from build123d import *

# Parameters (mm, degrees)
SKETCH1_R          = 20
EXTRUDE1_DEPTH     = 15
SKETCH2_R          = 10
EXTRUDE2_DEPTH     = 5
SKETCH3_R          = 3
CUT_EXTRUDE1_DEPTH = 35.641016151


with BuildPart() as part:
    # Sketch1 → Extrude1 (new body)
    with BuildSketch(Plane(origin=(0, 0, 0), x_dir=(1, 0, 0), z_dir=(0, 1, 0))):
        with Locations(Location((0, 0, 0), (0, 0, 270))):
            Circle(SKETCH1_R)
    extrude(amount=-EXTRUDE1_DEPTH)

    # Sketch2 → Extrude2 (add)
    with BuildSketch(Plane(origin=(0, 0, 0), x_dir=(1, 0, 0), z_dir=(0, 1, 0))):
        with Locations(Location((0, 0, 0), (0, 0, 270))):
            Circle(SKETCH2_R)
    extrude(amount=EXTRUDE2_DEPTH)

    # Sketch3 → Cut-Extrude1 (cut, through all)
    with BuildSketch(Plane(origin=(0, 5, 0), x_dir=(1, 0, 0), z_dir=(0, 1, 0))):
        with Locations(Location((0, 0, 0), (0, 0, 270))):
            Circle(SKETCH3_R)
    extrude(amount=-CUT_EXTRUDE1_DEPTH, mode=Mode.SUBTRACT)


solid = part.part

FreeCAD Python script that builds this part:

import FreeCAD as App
import Part
import Sketcher
from FreeCAD import Vector

doc = App.newDocument("Part")
body = doc.addObject("PartDesign::Body", "Body")

# Sketch on XZ plane
sketch1 = doc.addObject("Sketcher::SketchObject", "Sketch")
body.addObject(sketch1)
sketch1.AttachmentSupport = (doc.XZ_Plane, [""])
sketch1.MapMode = "FlatFace"
sketch1.addGeometry(Part.Circle(Vector(0, 0, 0), Vector(0, 0, 1), 20), False)
sketch1.addConstraint(Sketcher.Constraint("Coincident", 0, 3, -1, 1))
sketch1.addConstraint(Sketcher.Constraint("Diameter", 0, 40.0))
pad1 = doc.addObject("PartDesign::Pad", "Pad")
body.addObject(pad1)
pad1.Profile = sketch1
pad1.Length = 15

# Sketch on XZ plane
sketch2 = doc.addObject("Sketcher::SketchObject", "Sketch001")
body.addObject(sketch2)
sketch2.AttachmentSupport = (doc.XZ_Plane, [""])
sketch2.MapMode = "FlatFace"
sketch2.addGeometry(Part.Circle(Vector(0, 0, 0), Vector(0, 0, 1), 10), False)
sketch2.addConstraint(Sketcher.Constraint("Coincident", 0, 3, -1, 1))
sketch2.addConstraint(Sketcher.Constraint("Diameter", 0, 20.0))
pad2 = doc.addObject("PartDesign::Pad", "Pad001")
body.addObject(pad2)
pad2.Profile = sketch2
pad2.Length = 5
pad2.Reversed = True

# Sketch on XZ plane
sketch3 = doc.addObject("Sketcher::SketchObject", "Sketch002")
body.addObject(sketch3)
sketch3.AttachmentSupport = (doc.XZ_Plane, [""])
sketch3.MapMode = "FlatFace"
sketch3.AttachmentOffset = App.Placement(Vector(0, 0, -5), App.Rotation())
sketch3.addGeometry(Part.Circle(Vector(0, 0, 0), Vector(0, 0, 1), 3), False)
sketch3.addConstraint(Sketcher.Constraint("Coincident", 0, 3, -1, 1))
sketch3.addConstraint(Sketcher.Constraint("Diameter", 0, 6.0))
pocket1 = doc.addObject("PartDesign::Pocket", "Pocket")
body.addObject(pocket1)
pocket1.Profile = sketch3
pocket1.Type = "ThroughAll"
pocket1.Reversed = True

doc.recompute()
